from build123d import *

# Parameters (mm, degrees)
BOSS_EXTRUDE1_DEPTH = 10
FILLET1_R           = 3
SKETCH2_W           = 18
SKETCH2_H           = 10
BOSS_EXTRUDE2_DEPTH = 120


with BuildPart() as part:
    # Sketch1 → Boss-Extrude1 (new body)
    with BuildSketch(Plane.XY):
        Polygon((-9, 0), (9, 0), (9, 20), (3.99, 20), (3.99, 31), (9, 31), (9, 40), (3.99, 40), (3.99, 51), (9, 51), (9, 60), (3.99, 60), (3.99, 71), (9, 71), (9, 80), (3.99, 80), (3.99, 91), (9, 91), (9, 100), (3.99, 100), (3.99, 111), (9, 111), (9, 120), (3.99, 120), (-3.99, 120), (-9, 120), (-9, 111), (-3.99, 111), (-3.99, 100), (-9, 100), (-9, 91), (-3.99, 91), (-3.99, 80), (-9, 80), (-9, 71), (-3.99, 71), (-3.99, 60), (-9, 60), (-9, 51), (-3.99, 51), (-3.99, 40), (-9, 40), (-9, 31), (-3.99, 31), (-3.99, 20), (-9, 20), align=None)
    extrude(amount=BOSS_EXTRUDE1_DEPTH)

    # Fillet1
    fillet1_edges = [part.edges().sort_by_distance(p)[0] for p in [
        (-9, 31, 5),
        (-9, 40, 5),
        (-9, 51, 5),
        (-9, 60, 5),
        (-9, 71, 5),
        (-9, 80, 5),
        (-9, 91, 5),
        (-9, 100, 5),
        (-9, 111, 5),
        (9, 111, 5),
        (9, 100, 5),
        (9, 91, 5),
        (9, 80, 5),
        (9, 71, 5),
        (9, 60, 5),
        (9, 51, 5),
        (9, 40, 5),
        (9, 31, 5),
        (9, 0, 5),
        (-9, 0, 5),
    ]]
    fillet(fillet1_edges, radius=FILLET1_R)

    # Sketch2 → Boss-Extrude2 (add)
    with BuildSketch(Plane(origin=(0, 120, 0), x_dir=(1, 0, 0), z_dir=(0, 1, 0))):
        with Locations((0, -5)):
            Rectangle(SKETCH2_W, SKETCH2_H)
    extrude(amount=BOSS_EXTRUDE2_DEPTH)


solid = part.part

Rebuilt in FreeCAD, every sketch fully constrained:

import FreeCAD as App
import Part
import Sketcher
from FreeCAD import Vector
Q = App.Units.Quantity


def edges_at(feature, points):
    """Names of the edges that pass closest to the given points."""
    edges = feature.Shape.Edges
    near = lambda p: min(range(len(edges)), key=lambda i: edges[i].distToShape(Part.Vertex(*p))[0])
    return sorted({f"Edge{near(p) + 1}" for p in points})

doc = App.newDocument("Part")
body = doc.addObject("PartDesign::Body", "Body")

# Sketch on XY plane
sketch1 = body.newObject("Sketcher::SketchObject", "Sketch")
sketch1.AttachmentSupport = (doc.getObject("XY_Plane"), [""])
sketch1.MapMode = "FlatFace"
sketch1.addGeometry(Part.LineSegment(Vector(-9, 0, 0), Vector(9, 0, 0)), False)
sketch1.addGeometry(Part.LineSegment(Vector(9, 0, 0), Vector(9, 20, 0)), False)
sketch1.addGeometry(Part.LineSegment(Vector(9, 20, 0), Vector(3.99, 20, 0)), False)
sketch1.addGeometry(Part.LineSegment(Vector(3.99, 20, 0), Vector(3.99, 31, 0)), False)
sketch1.addGeometry(Part.LineSegment(Vector(3.99, 31, 0), Vector(9, 31, 0)), False)
sketch1.addGeometry(Part.LineSegment(Vector(9, 31, 0), Vector(9, 40, 0)), False)
sketch1.addGeometry(Part.LineSegment(Vector(9, 40, 0), Vector(3.99, 40, 0)), False)
sketch1.addGeometry(Part.LineSegment(Vector(3.99, 40, 0), Vector(3.99, 51, 0)), False)
sketch1.addGeometry(Part.LineSegment(Vector(3.99, 51, 0), Vector(9, 51, 0)), False)
sketch1.addGeometry(Part.LineSegment(Vector(9, 51, 0), Vector(9, 60, 0)), False)
sketch1.addGeometry(Part.LineSegment(Vector(9, 60, 0), Vector(3.99, 60, 0)), False)
sketch1.addGeometry(Part.LineSegment(Vector(3.99, 60, 0), Vector(3.99, 71, 0)), False)
sketch1.addGeometry(Part.LineSegment(Vector(3.99, 71, 0), Vector(9, 71, 0)), False)
sketch1.addGeometry(Part.LineSegment(Vector(9, 71, 0), Vector(9, 80, 0)), False)
sketch1.addGeometry(Part.LineSegment(Vector(9, 80, 0), Vector(3.99, 80, 0)), False)
sketch1.addGeometry(Part.LineSegment(Vector(3.99, 80, 0), Vector(3.99, 91, 0)), False)
sketch1.addGeometry(Part.LineSegment(Vector(3.99, 91, 0), Vector(9, 91, 0)), False)
sketch1.addGeometry(Part.LineSegment(Vector(9, 91, 0), Vector(9, 100, 0)), False)
sketch1.addGeometry(Part.LineSegment(Vector(9, 100, 0), Vector(3.99, 100, 0)), False)
sketch1.addGeometry(Part.LineSegment(Vector(3.99, 100, 0), Vector(3.99, 111, 0)), False)
sketch1.addGeometry(Part.LineSegment(Vector(3.99, 111, 0), Vector(9, 111, 0)), False)
sketch1.addGeometry(Part.LineSegment(Vector(9, 111, 0), Vector(9, 120, 0)), False)
sketch1.addGeometry(Part.LineSegment(Vector(9, 120, 0), Vector(-9, 120, 0)), False)
sketch1.addGeometry(Part.LineSegment(Vector(-9, 120, 0), Vector(-9, 111, 0)), False)
sketch1.addGeometry(Part.LineSegment(Vector(-9, 111, 0), Vector(-3.99, 111, 0)), False)
sketch1.addGeometry(Part.LineSegment(Vector(-3.99, 111, 0), Vector(-3.99, 100, 0)), False)
sketch1.addGeometry(Part.LineSegment(Vector(-3.99, 100, 0), Vector(-9, 100, 0)), False)
sketch1.addGeometry(Part.LineSegment(Vector(-9, 100, 0), Vector(-9, 91, 0)), False)
sketch1.addGeometry(Part.LineSegment(Vector(-9, 91, 0), Vector(-3.99, 91, 0)), False)
sketch1.addGeometry(Part.LineSegment(Vector(-3.99, 91, 0), Vector(-3.99, 80, 0)), False)
sketch1.addGeometry(Part.LineSegment(Vector(-3.99, 80, 0), Vector(-9, 80, 0)), False)
sketch1.addGeometry(Part.LineSegment(Vector(-9, 80, 0), Vector(-9, 71, 0)), False)
sketch1.addGeometry(Part.LineSegment(Vector(-9, 71, 0), Vector(-3.99, 71, 0)), False)
sketch1.addGeometry(Part.LineSegment(Vector(-3.99, 71, 0), Vector(-3.99, 60, 0)), False)
sketch1.addGeometry(Part.LineSegment(Vector(-3.99, 60, 0), Vector(-9, 60, 0)), False)
sketch1.addGeometry(Part.LineSegment(Vector(-9, 60, 0), Vector(-9, 51, 0)), False)
sketch1.addGeometry(Part.LineSegment(Vector(-9, 51, 0), Vector(-3.99, 51, 0)), False)
sketch1.addGeometry(Part.LineSegment(Vector(-3.99, 51, 0), Vector(-3.99, 40, 0)), False)
sketch1.addGeometry(Part.LineSegment(Vector(-3.99, 40, 0), Vector(-9, 40, 0)), False)
sketch1.addGeometry(Part.LineSegment(Vector(-9, 40, 0), Vector(-9, 31, 0)), False)
sketch1.addGeometry(Part.LineSegment(Vector(-9, 31, 0), Vector(-3.99, 31, 0)), False)
sketch1.addGeometry(Part.LineSegment(Vector(-3.99, 31, 0), Vector(-3.99, 20, 0)), False)
sketch1.addGeometry(Part.LineSegment(Vector(-3.99, 20, 0), Vector(-9, 20, 0)), False)
sketch1.addGeometry(Part.LineSegment(Vector(-9, 20, 0), Vector(-9, 0, 0)), False)
sketch1.addConstraint(Sketcher.Constraint("Coincident", 0, 2, 1, 1))
sketch1.addConstraint(Sketcher.Constraint("Coincident", 1, 2, 2, 1))
sketch1.addConstraint(Sketcher.Constraint("Coincident", 2, 2, 3, 1))
sketch1.addConstraint(Sketcher.Constraint("Coincident", 3, 2, 4, 1))
sketch1.addConstraint(Sketcher.Constraint("Coincident", 4, 2, 5, 1))
sketch1.addConstraint(Sketcher.Constraint("Coincident", 5, 2, 6, 1))
sketch1.addConstraint(Sketcher.Constraint("Coincident", 6, 2, 7, 1))
sketch1.addConstraint(Sketcher.Constraint("Coincident", 7, 2, 8, 1))
sketch1.addConstraint(Sketcher.Constraint("Coincident", 8, 2, 9, 1))
sketch1.addConstraint(Sketcher.Constraint("Coincident", 9, 2, 10, 1))
sketch1.addConstraint(Sketcher.Constraint("Coincident", 10, 2, 11, 1))
sketch1.addConstraint(Sketcher.Constraint("Coincident", 11, 2, 12, 1))
sketch1.addConstraint(Sketcher.Constraint("Coincident", 12, 2, 13, 1))
sketch1.addConstraint(Sketcher.Constraint("Coincident", 13, 2, 14, 1))
sketch1.addConstraint(Sketcher.Constraint("Coincident", 14, 2, 15, 1))
sketch1.addConstraint(Sketcher.Constraint("Coincident", 15, 2, 16, 1))
sketch1.addConstraint(Sketcher.Constraint("Coincident", 16, 2, 17, 1))
sketch1.addConstraint(Sketcher.Constraint("Coincident", 17, 2, 18, 1))
sketch1.addConstraint(Sketcher.Constraint("Coincident", 18, 2, 19, 1))
sketch1.addConstraint(Sketcher.Constraint("Coincident", 19, 2, 20, 1))
sketch1.addConstraint(Sketcher.Constraint("Coincident", 20, 2, 21, 1))
sketch1.addConstraint(Sketcher.Constraint("Coincident", 21, 2, 22, 1))
sketch1.addConstraint(Sketcher.Constraint("Coincident", 22, 2, 23, 1))
sketch1.addConstraint(Sketcher.Constraint("Coincident", 23, 2, 24, 1))
sketch1.addConstraint(Sketcher.Constraint("Coincident", 24, 2, 25, 1))
sketch1.addConstraint(Sketcher.Constraint("Coincident", 25, 2, 26, 1))
sketch1.addConstraint(Sketcher.Constraint("Coincident", 26, 2, 27, 1))
sketch1.addConstraint(Sketcher.Constraint("Coincident", 27, 2, 28, 1))
sketch1.addConstraint(Sketcher.Constraint("Coincident", 28, 2, 29, 1))
sketch1.addConstraint(Sketcher.Constraint("Coincident", 29, 2, 30, 1))
sketch1.addConstraint(Sketcher.Constraint("Coincident", 30, 2, 31, 1))
sketch1.addConstraint(Sketcher.Constraint("Coincident", 31, 2, 32, 1))
sketch1.addConstraint(Sketcher.Constraint("Coincident", 32, 2, 33, 1))
sketch1.addConstraint(Sketcher.Constraint("Coincident", 33, 2, 34, 1))
sketch1.addConstraint(Sketcher.Constraint("Coincident", 34, 2, 35, 1))
sketch1.addConstraint(Sketcher.Constraint("Coincident", 35, 2, 36, 1))
sketch1.addConstraint(Sketcher.Constraint("Coincident", 36, 2, 37, 1))
sketch1.addConstraint(Sketcher.Constraint("Coincident", 37, 2, 38, 1))
sketch1.addConstraint(Sketcher.Constraint("Coincident", 38, 2, 39, 1))
sketch1.addConstraint(Sketcher.Constraint("Coincident", 39, 2, 40, 1))
sketch1.addConstraint(Sketcher.Constraint("Coincident", 40, 2, 41, 1))
sketch1.addConstraint(Sketcher.Constraint("Coincident", 41, 2, 42, 1))
sketch1.addConstraint(Sketcher.Constraint("Coincident", 42, 2, 43, 1))
sketch1.addConstraint(Sketcher.Constraint("Coincident", 43, 2, 0, 1))
sketch1.addConstraint(Sketcher.Constraint("Horizontal", 0))
sketch1.addConstraint(Sketcher.Constraint("Vertical", 1))
sketch1.addConstraint(Sketcher.Constraint("Horizontal", 2))
sketch1.addConstraint(Sketcher.Constraint("Vertical", 3))
sketch1.addConstraint(Sketcher.Constraint("Horizontal", 4))
sketch1.addConstraint(Sketcher.Constraint("Vertical", 5))
sketch1.addConstraint(Sketcher.Constraint("Horizontal", 6))
sketch1.addConstraint(Sketcher.Constraint("Vertical", 7))
sketch1.addConstraint(Sketcher.Constraint("Horizontal", 8))
sketch1.addConstraint(Sketcher.Constraint("Vertical", 9))
sketch1.addConstraint(Sketcher.Constraint("Horizontal", 10))
sketch1.addConstraint(Sketcher.Constraint("Vertical", 11))
sketch1.addConstraint(Sketcher.Constraint("Horizontal", 12))
sketch1.addConstraint(Sketcher.Constraint("Vertical", 13))
sketch1.addConstraint(Sketcher.Constraint("Horizontal", 14))
sketch1.addConstraint(Sketcher.Constraint("Vertical", 15))
sketch1.addConstraint(Sketcher.Constraint("Horizontal", 16))
sketch1.addConstraint(Sketcher.Constraint("Vertical", 17))
sketch1.addConstraint(Sketcher.Constraint("Horizontal", 18))
sketch1.addConstraint(Sketcher.Constraint("Vertical", 19))
sketch1.addConstraint(Sketcher.Constraint("Horizontal", 20))
sketch1.addConstraint(Sketcher.Constraint("Vertical", 21))
sketch1.addConstraint(Sketcher.Constraint("Horizontal", 22))
sketch1.addConstraint(Sketcher.Constraint("Vertical", 23))
sketch1.addConstraint(Sketcher.Constraint("Horizontal", 24))
sketch1.addConstraint(Sketcher.Constraint("Vertical", 25))
sketch1.addConstraint(Sketcher.Constraint("Horizontal", 26))
sketch1.addConstraint(Sketcher.Constraint("Vertical", 27))
sketch1.addConstraint(Sketcher.Constraint("Horizontal", 28))
sketch1.addConstraint(Sketcher.Constraint("Vertical", 29))
sketch1.addConstraint(Sketcher.Constraint("Horizontal", 30))
sketch1.addConstraint(Sketcher.Constraint("Vertical", 31))
sketch1.addConstraint(Sketcher.Constraint("Horizontal", 32))
sketch1.addConstraint(Sketcher.Constraint("Vertical", 33))
sketch1.addConstraint(Sketcher.Constraint("Horizontal", 34))
sketch1.addConstraint(Sketcher.Constraint("Vertical", 35))
sketch1.addConstraint(Sketcher.Constraint("Horizontal", 36))
sketch1.addConstraint(Sketcher.Constraint("Vertical", 37))
sketch1.addConstraint(Sketcher.Constraint("Horizontal", 38))
sketch1.addConstraint(Sketcher.Constraint("Vertical", 39))
sketch1.addConstraint(Sketcher.Constraint("Horizontal", 40))
sketch1.addConstraint(Sketcher.Constraint("Vertical", 41))
sketch1.addConstraint(Sketcher.Constraint("Horizontal", 42))
sketch1.addConstraint(Sketcher.Constraint("Vertical", 43))
sketch1.addConstraint(Sketcher.Constraint("Symmetric", 0, 2, 43, 2, -1, 1))
sketch1.addConstraint(Sketcher.Constraint("Symmetric", 20, 2, 23, 2, -2))
sketch1.addConstraint(Sketcher.Constraint("Symmetric", 18, 2, 25, 2, -2))
sketch1.addConstraint(Sketcher.Constraint("Symmetric", 16, 2, 27, 2, -2))
sketch1.addConstraint(Sketcher.Constraint("Symmetric", 14, 2, 29, 2, -2))
sketch1.addConstraint(Sketcher.Constraint("Symmetric", 12, 2, 31, 2, -2))
sketch1.addConstraint(Sketcher.Constraint("Symmetric", 10, 2, 33, 2, -2))
sketch1.addConstraint(Sketcher.Constraint("Symmetric", 8, 2, 35, 2, -2))
sketch1.addConstraint(Sketcher.Constraint("Symmetric", 6, 2, 37, 2, -2))
sketch1.addConstraint(Sketcher.Constraint("Symmetric", 4, 2, 39, 2, -2))
sketch1.addConstraint(Sketcher.Constraint("Symmetric", 2, 2, 41, 2, -2))
sketch1.addConstraint(Sketcher.Constraint("Vertical", 1, 2, 4, 2))
sketch1.addConstraint(Sketcher.Constraint("Vertical", 3, 2, 6, 2))
sketch1.addConstraint(Sketcher.Constraint("Vertical", 5, 2, 8, 2))
sketch1.addConstraint(Sketcher.Constraint("Vertical", 7, 2, 10, 2))
sketch1.addConstraint(Sketcher.Constraint("Vertical", 9, 2, 12, 2))
sketch1.addConstraint(Sketcher.Constraint("Vertical", 11, 2, 14, 2))
sketch1.addConstraint(Sketcher.Constraint("Vertical", 13, 2, 16, 2))
sketch1.addConstraint(Sketcher.Constraint("Vertical", 15, 2, 18, 2))
sketch1.addConstraint(Sketcher.Constraint("Vertical", 17, 2, 20, 2))
sketch1.addConstraint(Sketcher.Constraint("Equal", 3, 7))
sketch1.addConstraint(Sketcher.Constraint("Equal", 5, 9))
sketch1.addConstraint(Sketcher.Constraint("Equal", 7, 11))
sketch1.addConstraint(Sketcher.Constraint("Equal", 9, 13))
sketch1.addConstraint(Sketcher.Constraint("Equal", 11, 15))
sketch1.addConstraint(Sketcher.Constraint("Equal", 13, 17))
sketch1.addConstraint(Sketcher.Constraint("Equal", 15, 19))
sketch1.addConstraint(Sketcher.Constraint("Equal", 17, 21))
sketch1.addConstraint(Sketcher.Constraint("DistanceX", 0, 1, 0, 2, Q("18 mm")))
sketch1.addConstraint(Sketcher.Constraint("DistanceY", 1, 1, 1, 2, Q("20 mm")))
sketch1.addConstraint(Sketcher.Constraint("DistanceY", 3, 1, 3, 2, Q("11 mm")))
sketch1.addConstraint(Sketcher.Constraint("DistanceY", 5, 1, 5, 2, Q("9 mm")))
sketch1.addConstraint(Sketcher.Constraint("DistanceX", 2, 2, 2, 1, Q("5.01 mm")))
pad1 = body.newObject("PartDesign::Pad", "Pad")
pad1.Profile = sketch1
pad1.Length = 10
doc.recompute()

fillet = body.newObject("PartDesign::Fillet", "Fillet")
fillet.Base = (pad1, edges_at(pad1, [
    (-9, 31, 5),
    (-9, 40, 5),
    (-9, 51, 5),
    (-9, 60, 5),
    (-9, 71, 5),
    (-9, 80, 5),
    (-9, 91, 5),
    (-9, 100, 5),
    (-9, 111, 5),
    (9, 111, 5),
    (9, 100, 5),
    (9, 91, 5),
    (9, 80, 5),
    (9, 71, 5),
    (9, 60, 5),
    (9, 51, 5),
    (9, 40, 5),
    (9, 31, 5),
    (9, 0, 5),
    (-9, 0, 5),
]))
fillet.Radius = 3

# Sketch on XZ plane
sketch2 = body.newObject("Sketcher::SketchObject", "Sketch001")
sketch2.AttachmentSupport = (doc.getObject("XZ_Plane"), [""])
sketch2.MapMode = "FlatFace"
sketch2.AttachmentOffset = App.Placement(Vector(0, 0, -120), App.Rotation())
sketch2.addGeometry(Part.LineSegment(Vector(-9, 0, 0), Vector(-9, 10, 0)), False)
sketch2.addGeometry(Part.LineSegment(Vector(-9, 10, 0), Vector(9, 10, 0)), False)
sketch2.addGeometry(Part.LineSegment(Vector(9, 10, 0), Vector(9, 0, 0)), False)
sketch2.addGeometry(Part.LineSegment(Vector(9, 0, 0), Vector(-9, 0, 0)), False)
sketch2.addConstraint(Sketcher.Constraint("Coincident", 0, 2, 1, 1))
sketch2.addConstraint(Sketcher.Constraint("Coincident", 1, 2, 2, 1))
sketch2.addConstraint(Sketcher.Constraint("Coincident", 2, 2, 3, 1))
sketch2.addConstraint(Sketcher.Constraint("Coincident", 3, 2, 0, 1))
sketch2.addConstraint(Sketcher.Constraint("Vertical", 0))
sketch2.addConstraint(Sketcher.Constraint("Horizontal", 1))
sketch2.addConstraint(Sketcher.Constraint("Vertical", 2))
sketch2.addConstraint(Sketcher.Constraint("Horizontal", 3))
sketch2.addConstraint(Sketcher.Constraint("Symmetric", 2, 2, 3, 2, -1, 1))
sketch2.addConstraint(Sketcher.Constraint("DistanceX", 1, 1, 1, 2, Q("18 mm")))
sketch2.addConstraint(Sketcher.Constraint("DistanceY", 0, 1, 0, 2, Q("10 mm")))
pad2 = body.newObject("PartDesign::Pad", "Pad001")
pad2.Profile = sketch2
pad2.Length = 120
pad2.Reversed = True

doc.recompute()
